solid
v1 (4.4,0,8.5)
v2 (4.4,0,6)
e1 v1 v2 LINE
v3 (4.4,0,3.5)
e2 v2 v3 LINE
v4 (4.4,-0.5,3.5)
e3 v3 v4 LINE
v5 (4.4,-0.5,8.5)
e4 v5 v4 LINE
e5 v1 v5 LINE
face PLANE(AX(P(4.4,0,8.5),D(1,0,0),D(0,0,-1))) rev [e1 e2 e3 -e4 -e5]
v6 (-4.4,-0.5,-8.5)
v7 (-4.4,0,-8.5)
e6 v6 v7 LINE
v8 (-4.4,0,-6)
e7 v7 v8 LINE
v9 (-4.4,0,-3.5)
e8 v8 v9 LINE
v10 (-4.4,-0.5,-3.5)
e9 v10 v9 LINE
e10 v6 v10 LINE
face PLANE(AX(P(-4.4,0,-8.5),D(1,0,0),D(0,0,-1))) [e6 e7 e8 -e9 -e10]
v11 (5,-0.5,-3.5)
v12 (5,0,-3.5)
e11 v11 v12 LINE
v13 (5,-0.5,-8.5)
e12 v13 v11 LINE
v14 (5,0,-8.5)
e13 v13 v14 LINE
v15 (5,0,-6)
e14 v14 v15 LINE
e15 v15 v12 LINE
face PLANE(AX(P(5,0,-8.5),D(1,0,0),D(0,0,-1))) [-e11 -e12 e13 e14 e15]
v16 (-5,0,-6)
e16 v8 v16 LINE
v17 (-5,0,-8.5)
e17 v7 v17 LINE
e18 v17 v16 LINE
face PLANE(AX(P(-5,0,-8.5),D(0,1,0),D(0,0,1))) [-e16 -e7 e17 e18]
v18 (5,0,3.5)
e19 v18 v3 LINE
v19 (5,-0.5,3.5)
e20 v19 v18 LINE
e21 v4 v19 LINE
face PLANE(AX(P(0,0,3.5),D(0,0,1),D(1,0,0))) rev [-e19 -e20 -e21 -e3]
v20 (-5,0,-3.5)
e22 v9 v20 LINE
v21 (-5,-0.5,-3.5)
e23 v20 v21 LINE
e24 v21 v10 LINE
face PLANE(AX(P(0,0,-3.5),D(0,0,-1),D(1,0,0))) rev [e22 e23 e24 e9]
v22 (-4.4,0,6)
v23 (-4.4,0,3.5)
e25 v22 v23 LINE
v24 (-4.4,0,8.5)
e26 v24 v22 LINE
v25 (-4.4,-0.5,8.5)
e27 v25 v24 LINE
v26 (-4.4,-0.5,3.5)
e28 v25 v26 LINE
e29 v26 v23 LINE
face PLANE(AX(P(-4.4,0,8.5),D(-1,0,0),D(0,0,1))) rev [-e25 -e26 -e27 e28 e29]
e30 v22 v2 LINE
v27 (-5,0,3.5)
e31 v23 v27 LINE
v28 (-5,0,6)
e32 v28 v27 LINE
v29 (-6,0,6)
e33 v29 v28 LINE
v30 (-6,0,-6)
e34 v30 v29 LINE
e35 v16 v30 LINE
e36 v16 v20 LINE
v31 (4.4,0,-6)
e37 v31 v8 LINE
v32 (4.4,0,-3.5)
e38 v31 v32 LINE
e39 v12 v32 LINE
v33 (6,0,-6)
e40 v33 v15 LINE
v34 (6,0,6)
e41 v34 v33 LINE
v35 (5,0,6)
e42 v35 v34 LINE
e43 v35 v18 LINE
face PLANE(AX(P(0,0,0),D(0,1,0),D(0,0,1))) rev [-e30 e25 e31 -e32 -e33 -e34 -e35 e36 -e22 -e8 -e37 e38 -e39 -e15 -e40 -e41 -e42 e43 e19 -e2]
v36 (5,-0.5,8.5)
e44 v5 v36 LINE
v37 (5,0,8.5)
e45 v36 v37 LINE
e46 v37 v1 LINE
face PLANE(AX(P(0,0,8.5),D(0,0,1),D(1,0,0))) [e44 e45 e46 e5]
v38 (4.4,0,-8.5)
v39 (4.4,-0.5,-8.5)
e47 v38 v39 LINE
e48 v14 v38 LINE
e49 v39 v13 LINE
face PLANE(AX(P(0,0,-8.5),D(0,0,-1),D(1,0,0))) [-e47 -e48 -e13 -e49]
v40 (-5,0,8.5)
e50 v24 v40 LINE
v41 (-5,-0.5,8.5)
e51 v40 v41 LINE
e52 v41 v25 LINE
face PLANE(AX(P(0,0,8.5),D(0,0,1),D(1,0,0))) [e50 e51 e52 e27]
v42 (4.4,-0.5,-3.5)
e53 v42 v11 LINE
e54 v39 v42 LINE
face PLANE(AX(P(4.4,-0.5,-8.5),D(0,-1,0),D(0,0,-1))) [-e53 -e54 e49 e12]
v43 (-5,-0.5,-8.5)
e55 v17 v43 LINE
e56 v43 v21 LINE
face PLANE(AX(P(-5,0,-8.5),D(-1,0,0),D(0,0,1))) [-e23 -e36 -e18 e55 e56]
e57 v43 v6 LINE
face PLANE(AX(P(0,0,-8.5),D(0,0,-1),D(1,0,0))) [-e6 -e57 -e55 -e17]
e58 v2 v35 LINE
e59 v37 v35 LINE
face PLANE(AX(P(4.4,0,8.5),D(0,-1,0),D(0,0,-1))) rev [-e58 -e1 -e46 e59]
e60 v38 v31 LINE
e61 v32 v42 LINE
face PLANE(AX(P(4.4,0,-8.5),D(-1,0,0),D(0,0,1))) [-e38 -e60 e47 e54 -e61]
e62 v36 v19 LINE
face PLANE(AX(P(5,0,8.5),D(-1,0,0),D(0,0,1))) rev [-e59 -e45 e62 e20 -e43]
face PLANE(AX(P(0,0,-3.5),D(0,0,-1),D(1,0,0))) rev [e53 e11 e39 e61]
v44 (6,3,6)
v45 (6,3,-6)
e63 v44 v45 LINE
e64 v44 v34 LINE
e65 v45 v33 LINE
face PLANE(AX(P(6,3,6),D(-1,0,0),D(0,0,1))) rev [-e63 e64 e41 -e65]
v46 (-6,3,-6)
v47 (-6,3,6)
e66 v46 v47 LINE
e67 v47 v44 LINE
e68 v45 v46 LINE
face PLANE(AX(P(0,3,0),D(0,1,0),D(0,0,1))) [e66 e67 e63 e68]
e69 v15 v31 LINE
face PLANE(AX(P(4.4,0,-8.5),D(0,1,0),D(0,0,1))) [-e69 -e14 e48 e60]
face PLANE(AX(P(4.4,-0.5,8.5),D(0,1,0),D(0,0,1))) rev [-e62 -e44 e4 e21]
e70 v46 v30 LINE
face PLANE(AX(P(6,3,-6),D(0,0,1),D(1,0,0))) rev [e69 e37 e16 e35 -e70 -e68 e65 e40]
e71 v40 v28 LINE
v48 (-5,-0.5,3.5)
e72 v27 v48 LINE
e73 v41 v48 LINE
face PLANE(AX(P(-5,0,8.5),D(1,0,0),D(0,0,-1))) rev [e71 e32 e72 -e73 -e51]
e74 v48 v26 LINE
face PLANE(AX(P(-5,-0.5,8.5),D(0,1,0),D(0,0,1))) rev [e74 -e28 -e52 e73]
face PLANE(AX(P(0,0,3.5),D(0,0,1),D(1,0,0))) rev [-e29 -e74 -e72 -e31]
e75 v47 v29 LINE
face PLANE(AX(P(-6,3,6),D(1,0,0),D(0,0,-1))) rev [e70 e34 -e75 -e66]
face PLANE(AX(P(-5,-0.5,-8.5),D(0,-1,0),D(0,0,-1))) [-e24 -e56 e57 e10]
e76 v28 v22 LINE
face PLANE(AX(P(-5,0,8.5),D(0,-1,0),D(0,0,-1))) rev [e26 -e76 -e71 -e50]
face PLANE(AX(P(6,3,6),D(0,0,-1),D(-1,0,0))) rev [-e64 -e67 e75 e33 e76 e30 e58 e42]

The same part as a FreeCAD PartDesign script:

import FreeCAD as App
import Part
import Sketcher

V = App.Vector

doc = App.newDocument("Part")
body = doc.addObject("PartDesign::Body", "Body")

# Sketch on XZ plane
sketch1 = body.newObject("Sketcher::SketchObject", "Sketch")
sketch1.AttachmentSupport = (doc.getObject("XZ_Plane"), [""])
sketch1.MapMode = "FlatFace"
sketch1.addGeometry([
    Part.LineSegment(V(-6, -6, 0), V(-6, 6, 0)),
    Part.LineSegment(V(-6, 6, 0), V(6, 6, 0)),
    Part.LineSegment(V(6, 6, 0), V(6, -6, 0)),
    Part.LineSegment(V(6, -6, 0), V(-6, -6, 0)),
], False)
sketch1.addConstraint([
    Sketcher.Constraint("Coincident", 0, 2, 1, 1),
    Sketcher.Constraint("Coincident", 1, 2, 2, 1),
    Sketcher.Constraint("Coincident", 2, 2, 3, 1),
    Sketcher.Constraint("Coincident", 3, 2, 0, 1),
    Sketcher.Constraint("Vertical", 0),
    Sketcher.Constraint("Horizontal", 1),
    Sketcher.Constraint("Vertical", 2),
    Sketcher.Constraint("Horizontal", 3),
    Sketcher.Constraint("Symmetric", 0, 2, 2, 2, -1, 1),
    Sketcher.Constraint("Equal", 3, 0),
    Sketcher.Constraint("DistanceX", 1, 1, 1, 2, 12.0),
])
pad1 = body.newObject("PartDesign::Pad", "Pad")
pad1.Profile = sketch1
pad1.Length = 3
pad1.Reversed = True

# Sketch on XY plane
sketch2 = body.newObject("Sketcher::SketchObject", "Sketch001")
sketch2.AttachmentSupport = (doc.getObject("XY_Plane"), [""])
sketch2.MapMode = "FlatFace"
sketch2.AttachmentOffset = App.Placement(V(0, 0, 6), App.Rotation())
sketch2.addGeometry([
    Part.LineSegment(V(4.4, 0, 0), V(4.4, -0.5, 0)),  # 0
    Part.LineSegment(V(4.4, -0.5, 0), V(5, -0.5, 0)),  # 1
    Part.LineSegment(V(5, -0.5, 0), V(5, 0, 0)),  # 2
    Part.LineSegment(V(5, 0, 0), V(4.4, 0, 0)),  # 3
    Part.LineSegment(V(-5, 0, 0), V(-5, -0.5, 0)),  # 4
    Part.LineSegment(V(-5, -0.5, 0), V(-4.4, -0.5, 0)),  # 5
    Part.LineSegment(V(-4.4, -0.5, 0), V(-4.4, 0, 0)),  # 6
    Part.LineSegment(V(-4.4, 0, 0), V(-5, 0, 0)),  # 7
], False)
sketch2.addConstraint([
    Sketcher.Constraint("Coincident", 0, 2, 1, 1),
    Sketcher.Constraint("Coincident", 1, 2, 2, 1),
    Sketcher.Constraint("Coincident", 2, 2, 3, 1),
    Sketcher.Constraint("Coincident", 3, 2, 0, 1),
    Sketcher.Constraint("Coincident", 4, 2, 5, 1),
    Sketcher.Constraint("Coincident", 5, 2, 6, 1),
    Sketcher.Constraint("Coincident", 6, 2, 7, 1),
    Sketcher.Constraint("Coincident", 7, 2, 4, 1),
    Sketcher.Constraint("Vertical", 0),
    Sketcher.Constraint("Horizontal", 1),
    Sketcher.Constraint("Vertical", 2),
    Sketcher.Constraint("Horizontal", 3),
    Sketcher.Constraint("Vertical", 4),
    Sketcher.Constraint("Horizontal", 5),
    Sketcher.Constraint("Vertical", 6),
    Sketcher.Constraint("Horizontal", 7),
    Sketcher.Constraint("Symmetric", 3, 2, 6, 2, -1, 1),
    Sketcher.Constraint("Symmetric", 1, 2, 4, 2, -2),
    Sketcher.Constraint("PointOnObject", 2, 2, -1),
    Sketcher.Constraint("DistanceX", 1, 1, 1, 2, 0.6),
    Sketcher.Constraint("DistanceY", 0, 2, 0, 1, 0.5),
    Sketcher.Constraint("DistanceX", -1, 1, 1, 2, 5.0),
])
pad2 = body.newObject("PartDesign::Pad", "Pad001")
pad2.Profile = sketch2
pad2.Length = 5
pad2.Midplane = True
doc.recompute()

mirrored = body.newObject("PartDesign::Mirrored", "Mirrored")
mirrored.Originals = [pad2]
mirrored.MirrorPlane = (doc.getObject("XY_Plane"), [""])
body.Tip = mirrored

doc.recompute()
